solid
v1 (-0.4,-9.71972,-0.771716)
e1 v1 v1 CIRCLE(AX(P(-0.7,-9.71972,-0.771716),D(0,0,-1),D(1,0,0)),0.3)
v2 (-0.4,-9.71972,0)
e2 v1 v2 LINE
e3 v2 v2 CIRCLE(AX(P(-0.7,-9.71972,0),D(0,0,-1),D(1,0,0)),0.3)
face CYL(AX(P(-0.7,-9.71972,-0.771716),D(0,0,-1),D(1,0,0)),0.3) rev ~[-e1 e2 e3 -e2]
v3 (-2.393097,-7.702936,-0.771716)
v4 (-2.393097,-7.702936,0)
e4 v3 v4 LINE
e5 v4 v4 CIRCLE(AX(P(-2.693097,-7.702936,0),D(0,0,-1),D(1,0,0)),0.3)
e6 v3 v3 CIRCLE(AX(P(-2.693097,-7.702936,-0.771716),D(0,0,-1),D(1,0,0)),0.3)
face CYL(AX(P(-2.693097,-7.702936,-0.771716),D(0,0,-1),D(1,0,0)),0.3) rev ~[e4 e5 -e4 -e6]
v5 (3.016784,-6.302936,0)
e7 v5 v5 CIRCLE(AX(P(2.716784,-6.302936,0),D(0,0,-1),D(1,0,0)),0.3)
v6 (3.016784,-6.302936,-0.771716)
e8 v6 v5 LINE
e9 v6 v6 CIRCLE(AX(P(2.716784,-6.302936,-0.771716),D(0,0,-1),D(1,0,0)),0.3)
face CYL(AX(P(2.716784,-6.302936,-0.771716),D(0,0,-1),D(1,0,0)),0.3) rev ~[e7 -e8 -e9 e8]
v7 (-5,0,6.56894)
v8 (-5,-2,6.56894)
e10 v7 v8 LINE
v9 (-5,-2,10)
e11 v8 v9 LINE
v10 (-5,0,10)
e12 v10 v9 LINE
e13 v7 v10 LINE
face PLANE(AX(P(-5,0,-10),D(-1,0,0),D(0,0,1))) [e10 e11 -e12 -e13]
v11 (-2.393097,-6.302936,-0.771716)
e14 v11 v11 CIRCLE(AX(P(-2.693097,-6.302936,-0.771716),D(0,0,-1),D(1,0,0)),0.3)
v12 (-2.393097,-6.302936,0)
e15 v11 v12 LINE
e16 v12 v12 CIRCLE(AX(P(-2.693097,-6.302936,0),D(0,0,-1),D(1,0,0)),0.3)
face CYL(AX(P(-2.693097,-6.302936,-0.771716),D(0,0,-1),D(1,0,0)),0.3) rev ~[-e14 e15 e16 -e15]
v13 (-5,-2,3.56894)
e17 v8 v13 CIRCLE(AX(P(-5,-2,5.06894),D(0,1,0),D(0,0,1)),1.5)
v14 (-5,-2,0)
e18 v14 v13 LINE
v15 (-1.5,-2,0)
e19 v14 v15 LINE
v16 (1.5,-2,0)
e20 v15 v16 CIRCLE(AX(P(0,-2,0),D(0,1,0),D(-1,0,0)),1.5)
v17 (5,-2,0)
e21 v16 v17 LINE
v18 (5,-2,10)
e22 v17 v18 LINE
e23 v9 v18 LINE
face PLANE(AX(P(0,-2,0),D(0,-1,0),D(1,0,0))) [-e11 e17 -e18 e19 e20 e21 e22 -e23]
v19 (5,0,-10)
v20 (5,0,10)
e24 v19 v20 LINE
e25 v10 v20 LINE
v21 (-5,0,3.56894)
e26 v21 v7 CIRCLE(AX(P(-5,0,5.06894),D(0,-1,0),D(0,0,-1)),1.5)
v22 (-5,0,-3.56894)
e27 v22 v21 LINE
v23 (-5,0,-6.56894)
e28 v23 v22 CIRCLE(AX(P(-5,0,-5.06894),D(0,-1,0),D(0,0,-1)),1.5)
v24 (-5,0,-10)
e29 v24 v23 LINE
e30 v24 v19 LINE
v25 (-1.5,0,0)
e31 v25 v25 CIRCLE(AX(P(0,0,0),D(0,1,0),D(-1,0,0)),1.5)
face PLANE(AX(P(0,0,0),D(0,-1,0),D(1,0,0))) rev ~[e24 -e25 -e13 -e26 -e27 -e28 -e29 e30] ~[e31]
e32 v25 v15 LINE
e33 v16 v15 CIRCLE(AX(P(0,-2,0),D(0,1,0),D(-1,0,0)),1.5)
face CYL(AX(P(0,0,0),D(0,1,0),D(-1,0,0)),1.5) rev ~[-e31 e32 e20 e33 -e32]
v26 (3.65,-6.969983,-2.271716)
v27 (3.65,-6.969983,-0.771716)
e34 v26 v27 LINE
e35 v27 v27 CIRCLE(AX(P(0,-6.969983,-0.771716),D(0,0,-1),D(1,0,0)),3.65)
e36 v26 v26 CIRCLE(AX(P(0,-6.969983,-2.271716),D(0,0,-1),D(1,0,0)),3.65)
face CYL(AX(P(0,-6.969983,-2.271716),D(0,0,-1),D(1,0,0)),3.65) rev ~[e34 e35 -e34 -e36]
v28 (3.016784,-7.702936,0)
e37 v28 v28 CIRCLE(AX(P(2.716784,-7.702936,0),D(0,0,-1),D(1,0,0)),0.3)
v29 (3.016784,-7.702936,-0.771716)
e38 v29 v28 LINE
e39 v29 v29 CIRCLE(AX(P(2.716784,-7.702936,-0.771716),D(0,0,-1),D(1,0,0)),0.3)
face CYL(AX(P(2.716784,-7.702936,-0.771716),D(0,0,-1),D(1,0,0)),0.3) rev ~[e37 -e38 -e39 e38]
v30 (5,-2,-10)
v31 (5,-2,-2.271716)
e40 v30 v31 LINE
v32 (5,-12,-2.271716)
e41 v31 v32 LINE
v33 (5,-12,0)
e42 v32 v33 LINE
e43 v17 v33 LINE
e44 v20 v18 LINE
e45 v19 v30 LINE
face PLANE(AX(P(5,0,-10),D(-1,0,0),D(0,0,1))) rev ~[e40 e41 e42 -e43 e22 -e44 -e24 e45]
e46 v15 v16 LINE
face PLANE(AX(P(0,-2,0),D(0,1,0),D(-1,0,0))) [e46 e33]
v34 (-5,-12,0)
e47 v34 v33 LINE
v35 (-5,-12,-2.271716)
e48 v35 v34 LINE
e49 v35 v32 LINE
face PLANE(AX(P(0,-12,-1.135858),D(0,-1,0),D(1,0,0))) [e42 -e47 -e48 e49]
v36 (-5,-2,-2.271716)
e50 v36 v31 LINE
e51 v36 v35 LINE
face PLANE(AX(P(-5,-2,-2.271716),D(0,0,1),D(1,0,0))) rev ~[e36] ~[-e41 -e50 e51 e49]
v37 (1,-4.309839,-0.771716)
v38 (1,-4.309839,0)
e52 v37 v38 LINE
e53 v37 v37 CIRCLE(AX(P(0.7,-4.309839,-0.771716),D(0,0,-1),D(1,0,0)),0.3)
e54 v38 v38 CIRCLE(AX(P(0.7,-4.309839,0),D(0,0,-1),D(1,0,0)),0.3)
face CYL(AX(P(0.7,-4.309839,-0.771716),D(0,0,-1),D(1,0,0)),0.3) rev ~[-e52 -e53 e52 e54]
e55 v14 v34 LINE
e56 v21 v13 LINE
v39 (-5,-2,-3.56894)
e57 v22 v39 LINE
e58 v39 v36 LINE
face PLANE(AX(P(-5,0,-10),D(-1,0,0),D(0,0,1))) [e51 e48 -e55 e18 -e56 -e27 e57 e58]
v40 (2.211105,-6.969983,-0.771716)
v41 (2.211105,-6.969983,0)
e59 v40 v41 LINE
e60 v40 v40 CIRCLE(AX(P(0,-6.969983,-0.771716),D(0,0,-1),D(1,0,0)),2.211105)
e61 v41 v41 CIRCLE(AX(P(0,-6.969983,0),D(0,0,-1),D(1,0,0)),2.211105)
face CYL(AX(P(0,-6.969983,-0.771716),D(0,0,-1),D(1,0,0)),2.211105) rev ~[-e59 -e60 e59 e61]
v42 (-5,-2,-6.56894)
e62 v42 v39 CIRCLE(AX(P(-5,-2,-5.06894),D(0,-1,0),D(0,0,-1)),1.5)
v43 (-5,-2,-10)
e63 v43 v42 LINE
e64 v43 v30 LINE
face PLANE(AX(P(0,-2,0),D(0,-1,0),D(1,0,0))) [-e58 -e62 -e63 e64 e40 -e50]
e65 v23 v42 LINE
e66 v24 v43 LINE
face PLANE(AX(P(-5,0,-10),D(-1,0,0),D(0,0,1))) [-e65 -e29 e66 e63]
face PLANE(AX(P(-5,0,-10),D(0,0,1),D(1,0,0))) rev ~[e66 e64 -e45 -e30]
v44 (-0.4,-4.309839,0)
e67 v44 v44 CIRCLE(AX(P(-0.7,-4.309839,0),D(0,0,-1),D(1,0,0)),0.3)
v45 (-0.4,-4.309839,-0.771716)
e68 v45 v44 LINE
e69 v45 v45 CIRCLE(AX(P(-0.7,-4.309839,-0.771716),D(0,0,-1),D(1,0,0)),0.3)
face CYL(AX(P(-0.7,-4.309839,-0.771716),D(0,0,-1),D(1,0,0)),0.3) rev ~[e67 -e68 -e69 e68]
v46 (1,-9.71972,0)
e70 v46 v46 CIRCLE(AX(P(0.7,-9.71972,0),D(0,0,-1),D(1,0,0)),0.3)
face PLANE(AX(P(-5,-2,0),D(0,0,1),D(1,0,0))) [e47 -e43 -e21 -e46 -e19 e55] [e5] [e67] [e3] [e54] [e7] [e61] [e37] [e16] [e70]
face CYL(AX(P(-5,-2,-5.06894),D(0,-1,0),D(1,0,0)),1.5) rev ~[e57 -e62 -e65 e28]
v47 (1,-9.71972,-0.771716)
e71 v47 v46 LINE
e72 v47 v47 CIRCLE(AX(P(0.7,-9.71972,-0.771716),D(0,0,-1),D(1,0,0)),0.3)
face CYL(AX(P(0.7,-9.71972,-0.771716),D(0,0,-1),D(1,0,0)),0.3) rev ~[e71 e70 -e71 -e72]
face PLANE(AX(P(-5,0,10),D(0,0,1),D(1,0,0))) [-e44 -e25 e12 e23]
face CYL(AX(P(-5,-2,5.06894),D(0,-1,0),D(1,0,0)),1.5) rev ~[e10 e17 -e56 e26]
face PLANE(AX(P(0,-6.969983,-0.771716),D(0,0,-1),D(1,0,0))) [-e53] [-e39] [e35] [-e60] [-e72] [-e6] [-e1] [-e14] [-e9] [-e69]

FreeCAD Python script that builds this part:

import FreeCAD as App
import Part
import Sketcher
from FreeCAD import Vector
Q = App.Units.Quantity


def add_polygon(sketch, points):
    """Adds a closed chain of lines whose ends are joined by coincident constraints."""
    first, n = sketch.GeometryCount, len(points)
    for a, b in zip(points, points[1:] + points[:1]):
        sketch.addGeometry(Part.LineSegment(App.Vector(*a, 0), App.Vector(*b, 0)), False)
    for i in range(n):
        sketch.addConstraint(Sketcher.Constraint("Coincident", first + i, 2, first + (i + 1) % n, 1))

doc = App.newDocument("Part")
body = doc.addObject("PartDesign::Body", "Body")

# Sketch on XZ plane
sketch1 = body.newObject("Sketcher::SketchObject", "Sketch")
sketch1.AttachmentSupport = (doc.getObject("XZ_Plane"), [""])
sketch1.MapMode = "FlatFace"
add_polygon(sketch1, [(-5, 10), (-5, -10), (5, -10), (5, 10)])  # lines 0-3
sketch1.addConstraint([
    Sketcher.Constraint("Vertical", 0),
    Sketcher.Constraint("Horizontal", 1),
    Sketcher.Constraint("Vertical", 2),
    Sketcher.Constraint("Horizontal", 3),
    Sketcher.Constraint("Symmetric", 0, 2, 2, 2, -1, 1),
    Sketcher.Constraint("DistanceX", 1, 1, 1, 2, Q("10 mm")),
    Sketcher.Constraint("DistanceY", 0, 2, 0, 1, Q("20 mm")),
])
pad1 = body.newObject("PartDesign::Pad", "Pad")
pad1.Profile = sketch1
pad1.Length = 2

# Sketch on XZ plane
sketch2 = body.newObject("Sketcher::SketchObject", "Sketch001")
sketch2.AttachmentSupport = (doc.getObject("XZ_Plane"), [""])
sketch2.MapMode = "FlatFace"
sketch2.AttachmentOffset = App.Placement(Vector(0, 0, 2), App.Rotation())
sketch2.addGeometry([
    Part.Circle(Vector(-5, 5.1, 0), Vector(0, 0, 1), 1.5),
    Part.Circle(Vector(-5, -5.1, 0), Vector(0, 0, 1), 1.5),
], False)
sketch2.addConstraint([
    Sketcher.Constraint("Equal", 0, 1),
    Sketcher.Constraint("Symmetric", 0, 3, 1, 3, -1),
    Sketcher.Constraint("Diameter", 0, Q("3 mm")),
    Sketcher.Constraint("DistanceX", 0, 3, -1, 1, Q("5 mm")),
    Sketcher.Constraint("DistanceY", -1, 1, 0, 3, Q("5.06894 mm")),
])
pocket1 = body.newObject("PartDesign::Pocket", "Pocket")
pocket1.Profile = sketch2
pocket1.Length = 25.4

# Sketch on XZ plane
sketch3 = body.newObject("Sketcher::SketchObject", "Sketch002")
sketch3.AttachmentSupport = (doc.getObject("XZ_Plane"), [""])
sketch3.MapMode = "FlatFace"
sketch3.AttachmentOffset = App.Placement(Vector(0, 0, 2), App.Rotation())
add_polygon(sketch3, [(-5, 0), (-5, -2.3), (5, -2.3), (5, 0)])  # lines 0-3
sketch3.addConstraint([
    Sketcher.Constraint("Vertical", 0),
    Sketcher.Constraint("Horizontal", 1),
    Sketcher.Constraint("Vertical", 2),
    Sketcher.Constraint("Horizontal", 3),
    Sketcher.Constraint("Symmetric", 2, 2, 3, 2, -1, 1),
    Sketcher.Constraint("DistanceX", 1, 1, 1, 2, Q("10 mm")),
    Sketcher.Constraint("DistanceY", 0, 2, 0, 1, Q("2.271716 mm")),
])
pad2 = body.newObject("PartDesign::Pad", "Pad001")
pad2.Profile = sketch3
pad2.Length = 10

# Sketch on XZ plane
sketch4 = body.newObject("Sketcher::SketchObject", "Sketch003")
sketch4.AttachmentSupport = (doc.getObject("XZ_Plane"), [""])
sketch4.MapMode = "FlatFace"
sketch4.addGeometry(Part.Circle(Vector(0, 0, 0), Vector(0, 0, 1), 1.5), False)
sketch4.addConstraint([
    Sketcher.Constraint("Coincident", 0, 3, -1, 1),
    Sketcher.Constraint("Diameter", 0, Q("3 mm")),
])
pocket2 = body.newObject("PartDesign::Pocket", "Pocket001")
pocket2.Profile = sketch4
pocket2.Length = 2
pocket2.Reversed = True

# Sketch on XY plane
sketch5 = body.newObject("Sketcher::SketchObject", "Sketch004")
sketch5.AttachmentSupport = (doc.getObject("XY_Plane"), [""])
sketch5.MapMode = "FlatFace"
sketch5.AttachmentOffset = App.Placement(Vector(0, 0, -2.271716), App.Rotation())
sketch5.addGeometry(Part.Circle(Vector(0, -7, 0), Vector(0, 0, 1), 3.6), False)
sketch5.addConstraint([
    Sketcher.Constraint("PointOnObject", 0, 3, -2),
    Sketcher.Constraint("Diameter", 0, Q("7.3 mm")),
    Sketcher.Constraint("DistanceY", 0, 3, -1, 1, Q("6.969983 mm")),
])
pocket3 = body.newObject("PartDesign::Pocket", "Pocket002")
pocket3.Profile = sketch5
pocket3.Length = 1.5
pocket3.Reversed = True

# Sketch on XY plane
sketch6 = body.newObject("Sketcher::SketchObject", "Sketch005")
sketch6.AttachmentSupport = (doc.getObject("XY_Plane"), [""])
sketch6.MapMode = "FlatFace"
sketch6.AttachmentOffset = App.Placement(Vector(0, 0, -0.771716), App.Rotation())
sketch6.addGeometry(Part.Circle(Vector(0, -7, 0), Vector(0, 0, 1), 2.2), False)
sketch6.addConstraint([
    Sketcher.Constraint("PointOnObject", 0, 3, -2),
    Sketcher.Constraint("Diameter", 0, Q("4.42221 mm")),
    Sketcher.Constraint("DistanceY", 0, 3, -1, 1, Q("6.969983 mm")),
])
pocket4 = body.newObject("PartDesign::Pocket", "Pocket003")
pocket4.Profile = sketch6
pocket4.Length = 1
pocket4.Reversed = True

# Sketch on XY plane
sketch7 = body.newObject("Sketcher::SketchObject", "Sketch006")
sketch7.AttachmentSupport = (doc.getObject("XY_Plane"), [""])
sketch7.MapMode = "FlatFace"
sketch7.AttachmentOffset = App.Placement(Vector(0, 0, -0.771716), App.Rotation())
sketch7.addGeometry([
    Part.Circle(Vector(0.7, -4.31, 0), Vector(0, 0, 1), 0.3),  # 0
    Part.Circle(Vector(-0.7, -4.31, 0), Vector(0, 0, 1), 0.3),  # 1
    Part.Circle(Vector(0.7, -9.72, 0), Vector(0, 0, 1), 0.3),  # 2
    Part.Circle(Vector(-0.7, -9.72, 0), Vector(0, 0, 1), 0.3),  # 3
    Part.Circle(Vector(-2.69, -6.3, 0), Vector(0, 0, 1), 0.3),  # 4
    Part.Circle(Vector(-2.69, -7.7, 0), Vector(0, 0, 1), 0.3),  # 5
    Part.Circle(Vector(2.72, -6.3, 0), Vector(0, 0, 1), 0.3),  # 6
    Part.Circle(Vector(2.72, -7.7, 0), Vector(0, 0, 1), 0.3),  # 7
], False)
sketch7.addConstraint([
    Sketcher.Constraint("Equal", 0, 1),
    Sketcher.Constraint("Equal", 1, 2),
    Sketcher.Constraint("Equal", 2, 3),
    Sketcher.Constraint("Equal", 3, 4),
    Sketcher.Constraint("Equal", 4, 5),
    Sketcher.Constraint("Equal", 5, 6),
    Sketcher.Constraint("Equal", 6, 7),
    Sketcher.Constraint("Symmetric", 0, 3, 1, 3, -2),
    Sketcher.Constraint("Symmetric", 2, 3, 3, 3, -2),
    Sketcher.Constraint("Horizontal", 4, 3, 6, 3),
    Sketcher.Constraint("Horizontal", 5, 3, 7, 3),
    Sketcher.Constraint("Vertical", 0, 3, 2, 3),
    Sketcher.Constraint("Vertical", 4, 3, 5, 3),
    Sketcher.Constraint("Vertical", 6, 3, 7, 3),
    Sketcher.Constraint("Diameter", 0, Q("0.6 mm")),
    Sketcher.Constraint("DistanceX", -1, 1, 0, 3, Q("0.7 mm")),
    Sketcher.Constraint("DistanceY", 5, 3, 4, 3, Q("1.4 mm")),
    Sketcher.Constraint("DistanceY", 0, 3, -1, 1, Q("4.309839 mm")),
    Sketcher.Constraint("DistanceY", 2, 3, -1, 1, Q("9.71972 mm")),
    Sketcher.Constraint("DistanceX", 4, 3, 6, 3, Q("5.409881 mm")),
    Sketcher.Constraint("DistanceX", 4, 3, -1, 1, Q("2.693097 mm")),
    Sketcher.Constraint("DistanceY", 4, 3, -1, 1, Q("6.302936 mm")),
])
pocket5 = body.newObject("PartDesign::Pocket", "Pocket004")
pocket5.Profile = sketch7
pocket5.Length = 1
pocket5.Reversed = True

doc.recompute()
